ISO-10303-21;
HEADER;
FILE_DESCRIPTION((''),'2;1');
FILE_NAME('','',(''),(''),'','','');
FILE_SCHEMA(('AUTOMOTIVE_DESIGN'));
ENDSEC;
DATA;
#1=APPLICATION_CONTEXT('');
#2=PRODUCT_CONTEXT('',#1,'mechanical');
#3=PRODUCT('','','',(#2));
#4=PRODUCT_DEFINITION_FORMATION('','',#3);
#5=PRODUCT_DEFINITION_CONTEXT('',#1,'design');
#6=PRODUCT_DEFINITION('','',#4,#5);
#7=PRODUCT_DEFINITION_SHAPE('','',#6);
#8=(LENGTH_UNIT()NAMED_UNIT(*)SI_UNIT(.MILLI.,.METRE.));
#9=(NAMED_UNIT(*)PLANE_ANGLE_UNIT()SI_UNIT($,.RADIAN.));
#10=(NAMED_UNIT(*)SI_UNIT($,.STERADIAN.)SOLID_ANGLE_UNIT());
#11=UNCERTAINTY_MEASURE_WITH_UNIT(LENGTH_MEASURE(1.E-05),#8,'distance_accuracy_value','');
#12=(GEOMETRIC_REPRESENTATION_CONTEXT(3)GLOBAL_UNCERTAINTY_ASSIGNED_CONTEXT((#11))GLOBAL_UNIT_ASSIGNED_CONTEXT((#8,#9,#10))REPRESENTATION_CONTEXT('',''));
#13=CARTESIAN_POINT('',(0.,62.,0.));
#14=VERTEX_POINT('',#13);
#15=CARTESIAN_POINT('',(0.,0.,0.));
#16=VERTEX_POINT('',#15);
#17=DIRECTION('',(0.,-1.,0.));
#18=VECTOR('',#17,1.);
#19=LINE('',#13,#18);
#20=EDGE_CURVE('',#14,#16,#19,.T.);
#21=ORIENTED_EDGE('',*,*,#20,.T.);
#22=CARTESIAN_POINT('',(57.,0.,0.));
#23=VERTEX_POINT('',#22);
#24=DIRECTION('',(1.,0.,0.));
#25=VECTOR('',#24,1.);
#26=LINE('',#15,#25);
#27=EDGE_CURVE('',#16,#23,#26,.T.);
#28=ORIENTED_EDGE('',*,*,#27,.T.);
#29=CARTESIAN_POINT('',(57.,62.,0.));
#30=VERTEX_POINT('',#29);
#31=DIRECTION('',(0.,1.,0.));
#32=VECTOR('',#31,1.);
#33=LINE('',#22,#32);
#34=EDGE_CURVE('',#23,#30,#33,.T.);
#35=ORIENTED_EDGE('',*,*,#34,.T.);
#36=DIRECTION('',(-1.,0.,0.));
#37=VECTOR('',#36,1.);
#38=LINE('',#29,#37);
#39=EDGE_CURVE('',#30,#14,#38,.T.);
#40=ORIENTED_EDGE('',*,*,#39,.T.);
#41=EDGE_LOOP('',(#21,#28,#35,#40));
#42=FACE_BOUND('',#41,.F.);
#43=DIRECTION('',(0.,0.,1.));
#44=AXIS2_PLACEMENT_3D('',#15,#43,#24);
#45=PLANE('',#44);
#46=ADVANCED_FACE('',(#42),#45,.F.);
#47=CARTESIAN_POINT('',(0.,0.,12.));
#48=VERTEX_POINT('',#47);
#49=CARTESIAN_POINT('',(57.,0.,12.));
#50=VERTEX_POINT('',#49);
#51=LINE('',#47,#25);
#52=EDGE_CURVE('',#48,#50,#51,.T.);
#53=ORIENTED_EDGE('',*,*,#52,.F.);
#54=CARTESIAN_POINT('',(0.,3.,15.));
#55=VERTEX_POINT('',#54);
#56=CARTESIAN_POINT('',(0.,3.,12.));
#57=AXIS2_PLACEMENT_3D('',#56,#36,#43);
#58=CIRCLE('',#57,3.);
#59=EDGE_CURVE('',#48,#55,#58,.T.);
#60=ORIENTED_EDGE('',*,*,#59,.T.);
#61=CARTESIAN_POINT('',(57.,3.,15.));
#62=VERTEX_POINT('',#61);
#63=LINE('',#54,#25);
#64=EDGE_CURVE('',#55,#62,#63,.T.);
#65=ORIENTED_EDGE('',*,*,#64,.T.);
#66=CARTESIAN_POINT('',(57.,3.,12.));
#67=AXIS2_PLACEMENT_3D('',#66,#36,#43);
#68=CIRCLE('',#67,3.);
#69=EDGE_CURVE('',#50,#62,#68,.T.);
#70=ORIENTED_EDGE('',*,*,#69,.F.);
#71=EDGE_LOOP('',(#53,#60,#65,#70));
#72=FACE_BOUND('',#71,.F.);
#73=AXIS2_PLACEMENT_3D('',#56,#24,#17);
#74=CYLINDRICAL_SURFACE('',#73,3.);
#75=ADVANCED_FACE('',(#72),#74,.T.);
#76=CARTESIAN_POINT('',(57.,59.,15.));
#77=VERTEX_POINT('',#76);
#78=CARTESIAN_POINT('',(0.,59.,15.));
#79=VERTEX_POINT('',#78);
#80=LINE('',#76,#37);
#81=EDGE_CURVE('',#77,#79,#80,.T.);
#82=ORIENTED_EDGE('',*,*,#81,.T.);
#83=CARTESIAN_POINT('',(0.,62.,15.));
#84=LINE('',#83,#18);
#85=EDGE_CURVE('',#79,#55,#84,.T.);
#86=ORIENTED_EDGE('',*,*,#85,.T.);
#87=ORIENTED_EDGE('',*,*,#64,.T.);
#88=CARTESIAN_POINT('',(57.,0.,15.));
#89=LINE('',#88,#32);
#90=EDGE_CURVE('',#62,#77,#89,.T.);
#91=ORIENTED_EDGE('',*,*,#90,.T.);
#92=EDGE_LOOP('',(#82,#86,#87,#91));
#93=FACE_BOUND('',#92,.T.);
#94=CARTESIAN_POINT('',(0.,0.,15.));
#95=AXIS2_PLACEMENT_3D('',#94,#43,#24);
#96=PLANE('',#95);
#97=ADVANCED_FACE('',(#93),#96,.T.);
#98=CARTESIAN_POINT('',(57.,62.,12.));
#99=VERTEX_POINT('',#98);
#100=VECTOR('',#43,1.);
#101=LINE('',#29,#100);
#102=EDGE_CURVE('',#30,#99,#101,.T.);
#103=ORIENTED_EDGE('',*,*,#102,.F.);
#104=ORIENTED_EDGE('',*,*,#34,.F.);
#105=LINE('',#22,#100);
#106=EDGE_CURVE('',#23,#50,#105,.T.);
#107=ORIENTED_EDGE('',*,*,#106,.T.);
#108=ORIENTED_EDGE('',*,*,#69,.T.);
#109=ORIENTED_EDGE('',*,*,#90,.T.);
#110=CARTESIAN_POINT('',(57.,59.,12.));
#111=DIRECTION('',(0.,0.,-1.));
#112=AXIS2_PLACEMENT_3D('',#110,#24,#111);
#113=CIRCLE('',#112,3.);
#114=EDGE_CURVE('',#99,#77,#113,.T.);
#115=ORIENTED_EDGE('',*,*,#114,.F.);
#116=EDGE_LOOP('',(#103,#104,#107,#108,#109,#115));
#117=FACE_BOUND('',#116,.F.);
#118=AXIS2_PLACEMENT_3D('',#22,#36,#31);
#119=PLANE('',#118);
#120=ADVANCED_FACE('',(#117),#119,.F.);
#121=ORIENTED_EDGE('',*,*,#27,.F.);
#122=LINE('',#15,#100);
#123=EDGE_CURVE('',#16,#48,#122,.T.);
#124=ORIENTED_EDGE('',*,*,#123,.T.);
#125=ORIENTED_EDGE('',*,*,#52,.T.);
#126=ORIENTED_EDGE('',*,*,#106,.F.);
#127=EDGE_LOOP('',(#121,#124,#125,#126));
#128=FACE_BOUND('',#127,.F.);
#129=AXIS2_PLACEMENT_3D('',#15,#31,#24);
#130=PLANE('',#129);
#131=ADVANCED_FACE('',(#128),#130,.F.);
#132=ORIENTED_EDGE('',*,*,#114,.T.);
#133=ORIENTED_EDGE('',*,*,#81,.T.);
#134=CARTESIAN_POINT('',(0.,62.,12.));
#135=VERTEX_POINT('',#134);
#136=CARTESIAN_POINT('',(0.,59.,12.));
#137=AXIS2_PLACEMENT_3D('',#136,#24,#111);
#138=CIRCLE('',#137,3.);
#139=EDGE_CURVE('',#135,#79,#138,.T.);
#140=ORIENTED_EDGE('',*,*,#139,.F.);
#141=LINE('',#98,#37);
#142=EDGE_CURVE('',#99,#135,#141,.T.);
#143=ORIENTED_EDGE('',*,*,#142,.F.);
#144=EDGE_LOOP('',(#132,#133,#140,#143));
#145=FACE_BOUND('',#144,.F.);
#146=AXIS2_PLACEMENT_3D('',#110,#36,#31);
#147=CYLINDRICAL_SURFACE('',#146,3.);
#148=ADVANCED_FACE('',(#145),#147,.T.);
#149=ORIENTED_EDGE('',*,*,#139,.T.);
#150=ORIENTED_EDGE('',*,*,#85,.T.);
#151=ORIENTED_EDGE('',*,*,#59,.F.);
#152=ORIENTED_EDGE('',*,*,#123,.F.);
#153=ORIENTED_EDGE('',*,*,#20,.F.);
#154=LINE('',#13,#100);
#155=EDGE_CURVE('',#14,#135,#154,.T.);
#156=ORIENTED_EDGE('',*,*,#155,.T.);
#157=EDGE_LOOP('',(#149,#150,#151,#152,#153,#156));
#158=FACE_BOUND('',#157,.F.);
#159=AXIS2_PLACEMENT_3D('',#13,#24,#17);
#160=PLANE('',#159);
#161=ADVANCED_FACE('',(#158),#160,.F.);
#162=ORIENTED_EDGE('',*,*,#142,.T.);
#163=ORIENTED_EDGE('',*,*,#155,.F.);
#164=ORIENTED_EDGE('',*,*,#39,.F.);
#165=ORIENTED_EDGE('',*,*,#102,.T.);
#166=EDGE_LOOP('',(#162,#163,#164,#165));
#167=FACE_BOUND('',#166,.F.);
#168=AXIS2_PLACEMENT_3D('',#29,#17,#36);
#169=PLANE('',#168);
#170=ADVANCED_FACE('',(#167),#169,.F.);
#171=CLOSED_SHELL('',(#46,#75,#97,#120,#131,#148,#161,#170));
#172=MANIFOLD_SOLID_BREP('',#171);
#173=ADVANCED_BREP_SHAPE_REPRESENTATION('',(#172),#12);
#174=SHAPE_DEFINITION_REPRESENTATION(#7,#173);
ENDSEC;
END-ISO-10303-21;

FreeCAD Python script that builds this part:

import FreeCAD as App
import Part
import Sketcher

V = App.Vector
Q = App.Units.Quantity


def edges_at(feature, points):
    """Names of the edges that pass closest to the given points."""
    edges = feature.Shape.Edges
    near = lambda p: min(range(len(edges)), key=lambda i: edges[i].distToShape(Part.Vertex(*p))[0])
    return sorted({f"Edge{near(p) + 1}" for p in points})


def add_polygon(sketch, points):
    """Adds a closed chain of lines whose ends are joined by coincident constraints."""
    first, n = sketch.GeometryCount, len(points)
    for a, b in zip(points, points[1:] + points[:1]):
        sketch.addGeometry(Part.LineSegment(App.Vector(*a, 0), App.Vector(*b, 0)), False)
    for i in range(n):
        sketch.addConstraint(Sketcher.Constraint("Coincident", first + i, 2, first + (i + 1) % n, 1))

doc = App.newDocument("Part")
body = doc.addObject("PartDesign::Body", "Body")

# Sketch on XY plane
sketch1 = body.newObject("Sketcher::SketchObject", "Sketch")
sketch1.AttachmentSupport = (doc.getObject("XY_Plane"), [""])
sketch1.MapMode = "FlatFace"
add_polygon(sketch1, [(0, 62), (0, 0), (57, 0), (57, 62)])  # lines 0-3
sketch1.addConstraint([
    Sketcher.Constraint("Vertical", 0),
    Sketcher.Constraint("Horizontal", 1),
    Sketcher.Constraint("Vertical", 2),
    Sketcher.Constraint("Horizontal", 3),
    Sketcher.Constraint("Coincident", 0, 2, -1, 1),
    Sketcher.Constraint("DistanceX", 1, 1, 1, 2, Q("57 mm")),
    Sketcher.Constraint("DistanceY", 0, 2, 0, 1, Q("62 mm")),
])
pad1 = body.newObject("PartDesign::Pad", "Pad")
pad1.Profile = sketch1
pad1.Length = 15
doc.recompute()

fillet = body.newObject("PartDesign::Fillet", "Fillet")
fillet.Base = (pad1, edges_at(pad1, [(28.5, 62, 15), (28.5, 0, 15)]))
fillet.Radius = 3

doc.recompute()
